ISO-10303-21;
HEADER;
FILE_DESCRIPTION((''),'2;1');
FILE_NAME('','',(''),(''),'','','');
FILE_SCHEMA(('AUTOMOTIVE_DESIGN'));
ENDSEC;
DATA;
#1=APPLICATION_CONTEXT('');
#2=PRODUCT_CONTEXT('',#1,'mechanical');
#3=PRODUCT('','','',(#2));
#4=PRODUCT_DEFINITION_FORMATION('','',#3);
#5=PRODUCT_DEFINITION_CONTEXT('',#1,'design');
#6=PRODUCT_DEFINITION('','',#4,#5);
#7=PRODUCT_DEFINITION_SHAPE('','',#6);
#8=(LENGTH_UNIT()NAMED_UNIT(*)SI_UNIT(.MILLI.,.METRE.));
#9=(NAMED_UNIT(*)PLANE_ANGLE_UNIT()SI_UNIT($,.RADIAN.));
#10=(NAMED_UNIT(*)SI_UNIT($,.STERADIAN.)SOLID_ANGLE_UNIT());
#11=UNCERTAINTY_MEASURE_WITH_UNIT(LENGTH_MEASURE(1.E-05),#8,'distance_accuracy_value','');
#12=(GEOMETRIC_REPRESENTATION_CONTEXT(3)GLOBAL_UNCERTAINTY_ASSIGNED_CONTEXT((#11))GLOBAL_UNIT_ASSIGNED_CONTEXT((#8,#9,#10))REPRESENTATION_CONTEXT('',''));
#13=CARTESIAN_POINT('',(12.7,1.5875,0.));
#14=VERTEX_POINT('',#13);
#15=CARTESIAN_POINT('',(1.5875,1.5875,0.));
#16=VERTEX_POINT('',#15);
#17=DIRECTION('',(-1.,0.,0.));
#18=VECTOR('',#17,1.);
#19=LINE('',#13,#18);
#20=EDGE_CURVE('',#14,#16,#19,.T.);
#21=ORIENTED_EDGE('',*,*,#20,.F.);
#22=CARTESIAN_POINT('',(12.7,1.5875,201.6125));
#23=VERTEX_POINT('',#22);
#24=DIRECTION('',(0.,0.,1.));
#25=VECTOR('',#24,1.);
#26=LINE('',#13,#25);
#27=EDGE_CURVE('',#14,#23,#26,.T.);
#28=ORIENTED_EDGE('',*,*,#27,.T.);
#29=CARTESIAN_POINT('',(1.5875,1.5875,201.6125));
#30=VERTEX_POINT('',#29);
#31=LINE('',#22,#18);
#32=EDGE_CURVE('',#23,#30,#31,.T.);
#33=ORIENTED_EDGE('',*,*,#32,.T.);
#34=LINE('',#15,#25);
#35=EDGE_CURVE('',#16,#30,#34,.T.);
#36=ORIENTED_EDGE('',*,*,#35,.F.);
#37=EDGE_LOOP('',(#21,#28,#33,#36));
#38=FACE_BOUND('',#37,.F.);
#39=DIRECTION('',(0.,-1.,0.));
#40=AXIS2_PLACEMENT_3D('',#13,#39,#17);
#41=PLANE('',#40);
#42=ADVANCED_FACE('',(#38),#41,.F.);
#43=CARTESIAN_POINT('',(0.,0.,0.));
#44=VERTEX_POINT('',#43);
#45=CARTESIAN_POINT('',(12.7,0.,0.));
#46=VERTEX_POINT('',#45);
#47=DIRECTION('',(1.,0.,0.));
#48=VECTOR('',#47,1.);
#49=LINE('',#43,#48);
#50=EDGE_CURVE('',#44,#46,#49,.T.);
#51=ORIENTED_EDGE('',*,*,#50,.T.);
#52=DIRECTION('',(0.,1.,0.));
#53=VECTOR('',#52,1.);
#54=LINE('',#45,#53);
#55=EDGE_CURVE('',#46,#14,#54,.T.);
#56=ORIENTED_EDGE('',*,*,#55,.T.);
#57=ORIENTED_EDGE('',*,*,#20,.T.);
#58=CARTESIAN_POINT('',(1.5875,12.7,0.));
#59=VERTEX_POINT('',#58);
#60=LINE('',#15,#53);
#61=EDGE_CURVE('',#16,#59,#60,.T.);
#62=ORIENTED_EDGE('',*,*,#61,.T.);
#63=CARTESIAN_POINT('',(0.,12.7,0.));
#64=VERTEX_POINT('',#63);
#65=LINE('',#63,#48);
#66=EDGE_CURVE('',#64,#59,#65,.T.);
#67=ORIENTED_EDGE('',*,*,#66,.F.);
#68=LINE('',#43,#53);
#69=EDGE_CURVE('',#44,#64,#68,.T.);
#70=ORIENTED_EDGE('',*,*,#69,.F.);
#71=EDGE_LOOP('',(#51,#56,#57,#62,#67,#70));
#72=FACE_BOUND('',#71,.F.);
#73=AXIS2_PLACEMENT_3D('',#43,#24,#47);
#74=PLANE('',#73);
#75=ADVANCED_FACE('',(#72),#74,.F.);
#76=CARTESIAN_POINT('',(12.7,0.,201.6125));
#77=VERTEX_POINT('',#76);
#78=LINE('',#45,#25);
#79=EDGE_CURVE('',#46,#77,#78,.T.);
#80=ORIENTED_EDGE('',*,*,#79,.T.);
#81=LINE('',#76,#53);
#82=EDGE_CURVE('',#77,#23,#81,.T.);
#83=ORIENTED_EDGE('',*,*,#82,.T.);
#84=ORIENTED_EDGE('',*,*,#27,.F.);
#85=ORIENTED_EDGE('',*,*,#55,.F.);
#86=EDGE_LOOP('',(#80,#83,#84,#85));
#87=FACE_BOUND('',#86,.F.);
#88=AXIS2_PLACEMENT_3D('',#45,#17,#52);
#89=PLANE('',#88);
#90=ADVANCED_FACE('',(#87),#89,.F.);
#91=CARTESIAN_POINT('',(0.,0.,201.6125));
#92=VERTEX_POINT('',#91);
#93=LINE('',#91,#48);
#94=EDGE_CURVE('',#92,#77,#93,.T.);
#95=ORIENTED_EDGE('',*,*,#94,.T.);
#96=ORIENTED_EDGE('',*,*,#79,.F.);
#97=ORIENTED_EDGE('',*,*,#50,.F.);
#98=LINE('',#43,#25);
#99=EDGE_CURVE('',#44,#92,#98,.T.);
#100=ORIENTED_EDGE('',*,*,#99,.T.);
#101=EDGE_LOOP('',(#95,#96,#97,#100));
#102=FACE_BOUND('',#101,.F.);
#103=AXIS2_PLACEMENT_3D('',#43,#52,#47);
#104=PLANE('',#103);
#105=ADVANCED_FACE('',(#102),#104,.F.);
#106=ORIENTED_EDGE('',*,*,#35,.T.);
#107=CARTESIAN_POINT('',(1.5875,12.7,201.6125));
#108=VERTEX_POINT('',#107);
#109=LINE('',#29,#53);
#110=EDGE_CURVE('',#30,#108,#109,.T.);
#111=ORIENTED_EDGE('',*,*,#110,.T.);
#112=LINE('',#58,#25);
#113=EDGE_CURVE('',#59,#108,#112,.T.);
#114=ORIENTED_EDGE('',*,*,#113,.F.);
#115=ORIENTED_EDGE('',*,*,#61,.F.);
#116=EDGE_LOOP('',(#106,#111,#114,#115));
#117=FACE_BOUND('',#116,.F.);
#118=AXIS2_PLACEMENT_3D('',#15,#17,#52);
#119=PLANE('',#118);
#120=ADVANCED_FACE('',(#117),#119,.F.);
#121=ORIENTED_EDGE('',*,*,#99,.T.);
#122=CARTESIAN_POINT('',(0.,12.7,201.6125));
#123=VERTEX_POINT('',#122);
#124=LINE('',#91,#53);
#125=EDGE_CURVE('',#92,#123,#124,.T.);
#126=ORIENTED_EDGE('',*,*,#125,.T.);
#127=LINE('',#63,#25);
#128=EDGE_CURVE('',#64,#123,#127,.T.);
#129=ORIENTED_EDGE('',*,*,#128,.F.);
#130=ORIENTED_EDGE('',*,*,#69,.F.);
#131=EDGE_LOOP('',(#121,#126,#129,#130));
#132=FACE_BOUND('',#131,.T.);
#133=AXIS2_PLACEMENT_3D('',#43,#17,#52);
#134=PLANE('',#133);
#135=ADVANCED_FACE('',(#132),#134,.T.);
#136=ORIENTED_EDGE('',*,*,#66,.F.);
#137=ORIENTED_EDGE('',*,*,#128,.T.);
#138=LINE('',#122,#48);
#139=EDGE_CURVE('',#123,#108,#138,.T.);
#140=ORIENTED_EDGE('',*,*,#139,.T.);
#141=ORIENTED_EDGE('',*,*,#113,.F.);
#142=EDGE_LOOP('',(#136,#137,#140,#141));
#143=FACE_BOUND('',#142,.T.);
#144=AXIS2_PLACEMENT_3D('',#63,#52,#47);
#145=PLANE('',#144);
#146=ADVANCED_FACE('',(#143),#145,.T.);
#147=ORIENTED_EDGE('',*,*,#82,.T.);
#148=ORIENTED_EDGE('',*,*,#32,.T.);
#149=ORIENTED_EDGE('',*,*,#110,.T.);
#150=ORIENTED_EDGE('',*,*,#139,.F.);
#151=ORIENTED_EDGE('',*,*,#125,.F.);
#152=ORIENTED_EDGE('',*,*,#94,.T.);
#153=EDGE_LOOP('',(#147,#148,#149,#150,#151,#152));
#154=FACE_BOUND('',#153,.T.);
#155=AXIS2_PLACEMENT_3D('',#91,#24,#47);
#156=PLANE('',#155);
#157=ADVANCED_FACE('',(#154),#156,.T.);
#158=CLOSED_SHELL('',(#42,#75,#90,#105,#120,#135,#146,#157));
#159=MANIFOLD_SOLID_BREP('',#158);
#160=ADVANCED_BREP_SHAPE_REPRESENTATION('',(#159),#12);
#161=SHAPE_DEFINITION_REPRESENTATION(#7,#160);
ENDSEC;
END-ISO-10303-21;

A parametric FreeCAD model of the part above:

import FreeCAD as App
import Part
import Sketcher
Q = App.Units.Quantity

doc = App.newDocument("Part")
body = doc.addObject("PartDesign::Body", "Body")

# Sketch on XY plane
sketch1 = body.newObject("Sketcher::SketchObject", "Sketch")
sketch1.AttachmentSupport = (doc.getObject("XY_Plane"), [""])
sketch1.MapMode = "FlatFace"
sketch1.addGeometry([
    Part.LineSegment(App.Vector(0, 12.7, 0), App.Vector(0, 0, 0)),  # 0
    Part.LineSegment(App.Vector(0, 0, 0), App.Vector(12.7, 0, 0)),  # 1
    Part.LineSegment(App.Vector(12.7, 0, 0), App.Vector(12.7, 1.5875, 0)),  # 2
    Part.LineSegment(App.Vector(12.7, 1.5875, 0), App.Vector(1.5875, 1.5875, 0)),  # 3
    Part.LineSegment(App.Vector(1.5875, 1.5875, 0), App.Vector(1.5875, 12.7, 0)),  # 4
    Part.LineSegment(App.Vector(1.5875, 12.7, 0), App.Vector(0, 12.7, 0)),  # 5
], False)
sketch1.addConstraint([
    Sketcher.Constraint("Coincident", 0, 2, 1, 1),
    Sketcher.Constraint("Coincident", 1, 2, 2, 1),
    Sketcher.Constraint("Coincident", 2, 2, 3, 1),
    Sketcher.Constraint("Coincident", 3, 2, 4, 1),
    Sketcher.Constraint("Coincident", 4, 2, 5, 1),
    Sketcher.Constraint("Coincident", 5, 2, 0, 1),
    Sketcher.Constraint("Vertical", 0),
    Sketcher.Constraint("Horizontal", 1),
    Sketcher.Constraint("Vertical", 2),
    Sketcher.Constraint("Horizontal", 3),
    Sketcher.Constraint("Vertical", 4),
    Sketcher.Constraint("Horizontal", 5),
    Sketcher.Constraint("Coincident", 0, 2, -1, 1),
    Sketcher.Constraint("Equal", 1, 0),
    Sketcher.Constraint("Equal", 5, 2),
    Sketcher.Constraint("DistanceX", 1, 1, 1, 2, Q("0.5 in")),
    Sketcher.Constraint("DistanceX", 5, 2, 5, 1, Q("0.0625 in")),
])
pad1 = body.newObject("PartDesign::Pad", "Pad")
pad1.Profile = sketch1
pad1.Length = Q("7.9375 in")

doc.recompute()
